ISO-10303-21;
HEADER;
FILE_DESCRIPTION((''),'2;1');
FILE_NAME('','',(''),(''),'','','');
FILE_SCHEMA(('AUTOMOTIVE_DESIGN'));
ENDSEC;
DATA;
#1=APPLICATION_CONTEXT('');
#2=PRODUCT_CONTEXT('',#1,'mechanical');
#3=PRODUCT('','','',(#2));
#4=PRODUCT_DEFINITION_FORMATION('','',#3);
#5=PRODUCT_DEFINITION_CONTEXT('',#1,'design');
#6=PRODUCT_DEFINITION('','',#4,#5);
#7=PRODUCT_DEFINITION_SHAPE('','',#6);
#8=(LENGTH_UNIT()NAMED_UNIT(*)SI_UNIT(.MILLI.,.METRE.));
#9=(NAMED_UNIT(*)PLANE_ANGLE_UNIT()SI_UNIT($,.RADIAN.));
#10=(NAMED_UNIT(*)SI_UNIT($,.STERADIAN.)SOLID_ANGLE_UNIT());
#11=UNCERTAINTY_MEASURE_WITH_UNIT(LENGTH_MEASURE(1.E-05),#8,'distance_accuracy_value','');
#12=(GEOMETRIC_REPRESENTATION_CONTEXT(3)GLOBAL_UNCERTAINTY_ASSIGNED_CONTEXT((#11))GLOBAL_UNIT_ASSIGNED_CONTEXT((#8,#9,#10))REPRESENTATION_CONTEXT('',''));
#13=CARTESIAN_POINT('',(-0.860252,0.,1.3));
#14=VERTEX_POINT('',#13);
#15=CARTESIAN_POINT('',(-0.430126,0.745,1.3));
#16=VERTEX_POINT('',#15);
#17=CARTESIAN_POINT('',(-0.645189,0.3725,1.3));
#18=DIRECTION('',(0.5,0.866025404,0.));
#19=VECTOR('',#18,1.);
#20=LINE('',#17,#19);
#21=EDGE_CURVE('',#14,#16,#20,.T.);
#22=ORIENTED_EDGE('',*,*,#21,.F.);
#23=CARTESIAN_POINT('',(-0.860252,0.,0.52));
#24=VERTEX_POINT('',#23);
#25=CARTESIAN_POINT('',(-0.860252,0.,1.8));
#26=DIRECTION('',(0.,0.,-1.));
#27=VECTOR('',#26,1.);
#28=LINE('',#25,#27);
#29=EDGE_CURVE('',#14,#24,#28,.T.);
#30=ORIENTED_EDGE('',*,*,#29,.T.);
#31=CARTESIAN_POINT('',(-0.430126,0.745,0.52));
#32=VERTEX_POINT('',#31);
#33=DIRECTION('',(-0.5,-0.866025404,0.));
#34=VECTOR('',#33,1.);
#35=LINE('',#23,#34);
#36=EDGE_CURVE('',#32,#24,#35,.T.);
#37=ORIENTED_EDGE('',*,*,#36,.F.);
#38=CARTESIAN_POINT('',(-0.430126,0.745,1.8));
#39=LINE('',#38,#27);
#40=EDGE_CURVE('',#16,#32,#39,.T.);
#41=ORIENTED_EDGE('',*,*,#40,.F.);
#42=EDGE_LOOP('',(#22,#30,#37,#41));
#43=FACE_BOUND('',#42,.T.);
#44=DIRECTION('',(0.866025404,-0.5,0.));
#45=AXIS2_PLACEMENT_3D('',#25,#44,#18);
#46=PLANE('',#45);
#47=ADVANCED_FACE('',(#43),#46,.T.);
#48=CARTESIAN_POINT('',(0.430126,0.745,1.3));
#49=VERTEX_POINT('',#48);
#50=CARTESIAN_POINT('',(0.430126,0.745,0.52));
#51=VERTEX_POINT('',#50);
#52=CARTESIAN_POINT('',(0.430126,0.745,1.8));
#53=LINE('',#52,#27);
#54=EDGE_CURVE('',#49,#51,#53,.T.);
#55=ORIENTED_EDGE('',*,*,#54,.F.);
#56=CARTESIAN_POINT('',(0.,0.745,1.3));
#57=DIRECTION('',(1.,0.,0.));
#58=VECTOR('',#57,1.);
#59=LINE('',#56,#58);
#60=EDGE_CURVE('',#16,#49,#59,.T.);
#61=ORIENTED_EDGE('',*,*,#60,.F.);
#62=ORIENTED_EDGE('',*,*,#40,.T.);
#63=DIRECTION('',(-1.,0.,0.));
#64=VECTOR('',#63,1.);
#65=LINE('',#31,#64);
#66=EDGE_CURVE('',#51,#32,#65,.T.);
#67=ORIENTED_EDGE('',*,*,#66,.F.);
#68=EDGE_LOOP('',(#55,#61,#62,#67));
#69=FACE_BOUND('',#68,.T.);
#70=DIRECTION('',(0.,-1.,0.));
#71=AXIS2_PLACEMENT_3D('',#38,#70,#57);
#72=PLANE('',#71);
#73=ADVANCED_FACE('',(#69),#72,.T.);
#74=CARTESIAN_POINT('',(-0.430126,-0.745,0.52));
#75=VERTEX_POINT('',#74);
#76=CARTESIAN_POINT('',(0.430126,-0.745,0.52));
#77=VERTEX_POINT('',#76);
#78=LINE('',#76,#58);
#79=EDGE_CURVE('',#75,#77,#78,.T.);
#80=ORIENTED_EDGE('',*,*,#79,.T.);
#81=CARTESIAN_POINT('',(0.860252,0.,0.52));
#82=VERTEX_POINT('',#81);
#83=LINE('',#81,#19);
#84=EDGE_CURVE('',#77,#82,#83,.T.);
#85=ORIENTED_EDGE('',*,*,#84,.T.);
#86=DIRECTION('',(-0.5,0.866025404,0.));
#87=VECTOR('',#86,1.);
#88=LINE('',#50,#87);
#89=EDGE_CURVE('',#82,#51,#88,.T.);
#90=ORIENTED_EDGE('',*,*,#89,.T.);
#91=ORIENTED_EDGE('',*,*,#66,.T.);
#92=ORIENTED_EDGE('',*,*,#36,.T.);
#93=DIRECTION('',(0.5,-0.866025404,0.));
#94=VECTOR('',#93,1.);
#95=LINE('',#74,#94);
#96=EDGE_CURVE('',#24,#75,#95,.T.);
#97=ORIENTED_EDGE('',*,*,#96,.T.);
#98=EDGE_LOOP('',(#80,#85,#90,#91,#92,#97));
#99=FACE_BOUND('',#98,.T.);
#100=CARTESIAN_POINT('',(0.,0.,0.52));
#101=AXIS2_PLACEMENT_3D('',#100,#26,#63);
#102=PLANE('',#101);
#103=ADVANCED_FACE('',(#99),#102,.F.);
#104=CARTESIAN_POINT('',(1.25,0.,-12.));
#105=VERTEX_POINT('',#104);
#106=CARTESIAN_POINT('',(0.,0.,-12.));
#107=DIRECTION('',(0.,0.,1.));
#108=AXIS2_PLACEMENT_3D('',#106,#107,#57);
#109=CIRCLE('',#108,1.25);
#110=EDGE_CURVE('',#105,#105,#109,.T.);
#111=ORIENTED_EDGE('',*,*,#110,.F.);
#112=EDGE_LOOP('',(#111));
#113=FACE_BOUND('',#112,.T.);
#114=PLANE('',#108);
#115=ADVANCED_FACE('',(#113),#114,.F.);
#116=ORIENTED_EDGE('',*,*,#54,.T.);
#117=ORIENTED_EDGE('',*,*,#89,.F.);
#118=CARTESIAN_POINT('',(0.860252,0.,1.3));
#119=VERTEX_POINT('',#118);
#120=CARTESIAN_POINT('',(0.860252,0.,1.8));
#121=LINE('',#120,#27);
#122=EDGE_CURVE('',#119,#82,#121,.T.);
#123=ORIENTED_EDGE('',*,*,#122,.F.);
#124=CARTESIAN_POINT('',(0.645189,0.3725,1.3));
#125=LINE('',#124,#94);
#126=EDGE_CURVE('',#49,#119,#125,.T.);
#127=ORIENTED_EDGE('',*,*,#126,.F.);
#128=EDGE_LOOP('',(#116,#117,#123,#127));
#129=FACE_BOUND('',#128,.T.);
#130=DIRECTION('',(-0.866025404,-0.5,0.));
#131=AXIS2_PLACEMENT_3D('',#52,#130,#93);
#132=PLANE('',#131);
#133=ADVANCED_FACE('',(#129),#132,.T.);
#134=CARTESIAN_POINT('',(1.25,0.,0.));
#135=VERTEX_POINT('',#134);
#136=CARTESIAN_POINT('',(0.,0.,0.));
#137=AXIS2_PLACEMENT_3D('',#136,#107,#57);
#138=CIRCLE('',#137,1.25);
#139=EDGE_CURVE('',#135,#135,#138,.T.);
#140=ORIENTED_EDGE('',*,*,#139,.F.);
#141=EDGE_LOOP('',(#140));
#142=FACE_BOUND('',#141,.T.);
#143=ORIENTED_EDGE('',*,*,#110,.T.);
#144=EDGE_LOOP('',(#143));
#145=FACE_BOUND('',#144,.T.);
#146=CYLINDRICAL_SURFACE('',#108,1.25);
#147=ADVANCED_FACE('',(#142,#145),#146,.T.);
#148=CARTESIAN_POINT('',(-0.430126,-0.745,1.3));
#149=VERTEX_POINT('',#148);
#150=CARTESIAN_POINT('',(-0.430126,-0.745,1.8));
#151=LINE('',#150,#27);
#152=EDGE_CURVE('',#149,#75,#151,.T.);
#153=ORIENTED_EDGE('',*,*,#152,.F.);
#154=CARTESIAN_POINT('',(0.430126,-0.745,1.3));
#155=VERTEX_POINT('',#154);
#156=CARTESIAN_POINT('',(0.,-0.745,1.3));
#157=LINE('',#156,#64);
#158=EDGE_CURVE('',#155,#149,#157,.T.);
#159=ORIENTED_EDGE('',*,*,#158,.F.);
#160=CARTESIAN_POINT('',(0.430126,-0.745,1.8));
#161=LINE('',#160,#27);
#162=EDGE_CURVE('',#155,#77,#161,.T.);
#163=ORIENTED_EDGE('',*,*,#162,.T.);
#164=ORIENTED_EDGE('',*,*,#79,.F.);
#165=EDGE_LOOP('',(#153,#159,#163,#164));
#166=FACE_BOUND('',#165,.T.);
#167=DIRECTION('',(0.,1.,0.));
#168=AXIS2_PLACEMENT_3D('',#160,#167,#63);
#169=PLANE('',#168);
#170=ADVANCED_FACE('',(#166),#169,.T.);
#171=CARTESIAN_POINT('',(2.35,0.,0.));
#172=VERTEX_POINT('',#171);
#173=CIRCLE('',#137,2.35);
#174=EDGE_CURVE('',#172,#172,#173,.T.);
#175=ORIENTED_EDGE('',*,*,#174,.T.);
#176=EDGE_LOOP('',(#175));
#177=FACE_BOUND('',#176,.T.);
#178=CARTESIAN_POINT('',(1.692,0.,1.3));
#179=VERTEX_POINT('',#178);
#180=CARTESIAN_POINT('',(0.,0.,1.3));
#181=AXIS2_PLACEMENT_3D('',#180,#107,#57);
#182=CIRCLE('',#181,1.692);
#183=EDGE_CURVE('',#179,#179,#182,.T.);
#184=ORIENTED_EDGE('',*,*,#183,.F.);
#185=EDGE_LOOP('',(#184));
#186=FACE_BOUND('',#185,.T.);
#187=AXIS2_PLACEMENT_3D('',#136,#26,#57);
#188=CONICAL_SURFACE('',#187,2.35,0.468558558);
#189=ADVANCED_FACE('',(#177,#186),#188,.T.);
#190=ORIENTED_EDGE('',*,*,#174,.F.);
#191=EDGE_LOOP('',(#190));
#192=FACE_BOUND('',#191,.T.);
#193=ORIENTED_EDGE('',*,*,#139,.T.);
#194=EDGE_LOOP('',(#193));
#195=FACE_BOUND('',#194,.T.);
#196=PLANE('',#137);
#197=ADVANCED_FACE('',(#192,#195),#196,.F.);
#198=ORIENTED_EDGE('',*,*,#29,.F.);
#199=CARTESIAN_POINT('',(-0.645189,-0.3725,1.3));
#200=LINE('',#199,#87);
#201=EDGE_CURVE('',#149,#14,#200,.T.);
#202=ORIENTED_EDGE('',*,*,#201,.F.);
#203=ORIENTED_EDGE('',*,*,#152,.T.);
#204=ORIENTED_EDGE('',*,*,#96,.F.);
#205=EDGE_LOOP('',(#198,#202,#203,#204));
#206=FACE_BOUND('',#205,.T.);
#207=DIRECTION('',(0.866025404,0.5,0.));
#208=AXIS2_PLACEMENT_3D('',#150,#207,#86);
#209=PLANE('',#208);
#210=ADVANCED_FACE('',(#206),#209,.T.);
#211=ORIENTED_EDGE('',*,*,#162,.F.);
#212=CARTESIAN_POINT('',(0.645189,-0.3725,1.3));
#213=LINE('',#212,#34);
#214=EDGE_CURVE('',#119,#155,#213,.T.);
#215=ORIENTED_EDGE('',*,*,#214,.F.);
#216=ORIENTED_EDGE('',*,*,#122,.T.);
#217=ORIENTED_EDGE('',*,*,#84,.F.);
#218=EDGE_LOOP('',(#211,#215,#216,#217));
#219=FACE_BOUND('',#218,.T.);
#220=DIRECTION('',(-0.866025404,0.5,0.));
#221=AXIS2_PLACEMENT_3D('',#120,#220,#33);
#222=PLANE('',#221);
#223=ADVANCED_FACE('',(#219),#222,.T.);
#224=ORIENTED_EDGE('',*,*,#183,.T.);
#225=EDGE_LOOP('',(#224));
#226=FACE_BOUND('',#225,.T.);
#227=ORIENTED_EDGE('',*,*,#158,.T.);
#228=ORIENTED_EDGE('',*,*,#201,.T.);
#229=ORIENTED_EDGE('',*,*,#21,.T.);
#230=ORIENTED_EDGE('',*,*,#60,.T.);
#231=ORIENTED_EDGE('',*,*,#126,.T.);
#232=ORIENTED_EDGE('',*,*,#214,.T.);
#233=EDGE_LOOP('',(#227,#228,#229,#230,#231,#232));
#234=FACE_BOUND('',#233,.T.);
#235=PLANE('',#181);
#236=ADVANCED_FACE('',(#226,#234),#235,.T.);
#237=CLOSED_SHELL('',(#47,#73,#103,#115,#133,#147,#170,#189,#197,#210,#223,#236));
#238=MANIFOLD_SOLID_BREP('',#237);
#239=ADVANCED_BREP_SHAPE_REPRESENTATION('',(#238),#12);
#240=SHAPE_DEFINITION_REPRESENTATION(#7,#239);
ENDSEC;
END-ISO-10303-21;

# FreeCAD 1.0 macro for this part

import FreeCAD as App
import Part
import Sketcher
Q = App.Units.Quantity


def add_polygon(sketch, points):
    """Adds a closed chain of lines whose ends are joined by coincident constraints."""
    first, n = sketch.GeometryCount, len(points)
    for a, b in zip(points, points[1:] + points[:1]):
        sketch.addGeometry(Part.LineSegment(App.Vector(*a, 0), App.Vector(*b, 0)), False)
    for i in range(n):
        sketch.addConstraint(Sketcher.Constraint("Coincident", first + i, 2, first + (i + 1) % n, 1))

doc = App.newDocument("Part")
body = doc.addObject("PartDesign::Body", "Body")

sketch1 = body.newObject("Sketcher::SketchObject", "Sketch")
sketch1.AttachmentSupport = (doc.getObject("XY_Plane"), [""])
sketch1.MapMode = "FlatFace"
sketch1.addGeometry(Part.Circle(App.Vector(0, 0, 0), App.Vector(0, 0, 1), 1.2), False)
sketch1.addConstraint(Sketcher.Constraint("Coincident", 0, 3, -1, 1))
sketch1.addConstraint(Sketcher.Constraint("Diameter", 0, Q("2.5 mm")))
pad1 = body.newObject("PartDesign::Pad", "Pad")
pad1.Profile = sketch1
pad1.Length = 12
pad1.Reversed = True

sketch2 = body.newObject("Sketcher::SketchObject", "Sketch001")
sketch2.AttachmentSupport = (doc.getObject("XY_Plane"), [""])
sketch2.MapMode = "FlatFace"
sketch2.addGeometry(Part.Circle(App.Vector(0, 0, 0), App.Vector(0, 0, 1), 2.4), False)
sketch2.addConstraint(Sketcher.Constraint("Coincident", 0, 3, -1, 1))
sketch2.addConstraint(Sketcher.Constraint("Diameter", 0, Q("4.7 mm")))
pad2 = body.newObject("PartDesign::Pad", "Pad001")
pad2.Profile = sketch2
pad2.Length = 1.3
pad2.TaperAngle = -26.846428

sketch3 = body.newObject("Sketcher::SketchObject", "Sketch002")
sketch3.AttachmentSupport = (doc.getObject("XY_Plane"), [""])
sketch3.MapMode = "FlatFace"
sketch3.AttachmentOffset = App.Placement(App.Vector(0, 0, 0.52), App.Rotation())
add_polygon(sketch3, [(0.4, -0.7), (0.9, 0), (0.4, 0.7), (-0.4, 0.7), (-0.9, 0), (-0.4, -0.7)])
sketch3.addConstraint(Sketcher.Constraint("Horizontal", 2))
sketch3.addConstraint(Sketcher.Constraint("Horizontal", 5))
sketch3.addConstraint(Sketcher.Constraint("Symmetric", 0, 2, 3, 2, -1, 1))
sketch3.addConstraint(Sketcher.Constraint("Symmetric", 1, 2, 4, 2, -1, 1))
sketch3.addConstraint(Sketcher.Constraint("PointOnObject", 0, 2, -1))
sketch3.addConstraint(Sketcher.Constraint("Parallel", 0, 3))
sketch3.addConstraint(Sketcher.Constraint("Vertical", 2, 2, 4, 2))
sketch3.addConstraint(Sketcher.Constraint("Angle", 0, Q("60 deg")))
sketch3.addConstraint(Sketcher.Constraint("DistanceY", 4, 2, 2, 2, Q("1.49 mm")))
sketch3.addConstraint(Sketcher.Constraint("DistanceX", 2, 2, 2, 1, Q("0.860252 mm")))
pocket1 = body.newObject("PartDesign::Pocket", "Pocket")
pocket1.Profile = sketch3
pocket1.Length = 1.28
pocket1.Reversed = True

doc.recompute()
